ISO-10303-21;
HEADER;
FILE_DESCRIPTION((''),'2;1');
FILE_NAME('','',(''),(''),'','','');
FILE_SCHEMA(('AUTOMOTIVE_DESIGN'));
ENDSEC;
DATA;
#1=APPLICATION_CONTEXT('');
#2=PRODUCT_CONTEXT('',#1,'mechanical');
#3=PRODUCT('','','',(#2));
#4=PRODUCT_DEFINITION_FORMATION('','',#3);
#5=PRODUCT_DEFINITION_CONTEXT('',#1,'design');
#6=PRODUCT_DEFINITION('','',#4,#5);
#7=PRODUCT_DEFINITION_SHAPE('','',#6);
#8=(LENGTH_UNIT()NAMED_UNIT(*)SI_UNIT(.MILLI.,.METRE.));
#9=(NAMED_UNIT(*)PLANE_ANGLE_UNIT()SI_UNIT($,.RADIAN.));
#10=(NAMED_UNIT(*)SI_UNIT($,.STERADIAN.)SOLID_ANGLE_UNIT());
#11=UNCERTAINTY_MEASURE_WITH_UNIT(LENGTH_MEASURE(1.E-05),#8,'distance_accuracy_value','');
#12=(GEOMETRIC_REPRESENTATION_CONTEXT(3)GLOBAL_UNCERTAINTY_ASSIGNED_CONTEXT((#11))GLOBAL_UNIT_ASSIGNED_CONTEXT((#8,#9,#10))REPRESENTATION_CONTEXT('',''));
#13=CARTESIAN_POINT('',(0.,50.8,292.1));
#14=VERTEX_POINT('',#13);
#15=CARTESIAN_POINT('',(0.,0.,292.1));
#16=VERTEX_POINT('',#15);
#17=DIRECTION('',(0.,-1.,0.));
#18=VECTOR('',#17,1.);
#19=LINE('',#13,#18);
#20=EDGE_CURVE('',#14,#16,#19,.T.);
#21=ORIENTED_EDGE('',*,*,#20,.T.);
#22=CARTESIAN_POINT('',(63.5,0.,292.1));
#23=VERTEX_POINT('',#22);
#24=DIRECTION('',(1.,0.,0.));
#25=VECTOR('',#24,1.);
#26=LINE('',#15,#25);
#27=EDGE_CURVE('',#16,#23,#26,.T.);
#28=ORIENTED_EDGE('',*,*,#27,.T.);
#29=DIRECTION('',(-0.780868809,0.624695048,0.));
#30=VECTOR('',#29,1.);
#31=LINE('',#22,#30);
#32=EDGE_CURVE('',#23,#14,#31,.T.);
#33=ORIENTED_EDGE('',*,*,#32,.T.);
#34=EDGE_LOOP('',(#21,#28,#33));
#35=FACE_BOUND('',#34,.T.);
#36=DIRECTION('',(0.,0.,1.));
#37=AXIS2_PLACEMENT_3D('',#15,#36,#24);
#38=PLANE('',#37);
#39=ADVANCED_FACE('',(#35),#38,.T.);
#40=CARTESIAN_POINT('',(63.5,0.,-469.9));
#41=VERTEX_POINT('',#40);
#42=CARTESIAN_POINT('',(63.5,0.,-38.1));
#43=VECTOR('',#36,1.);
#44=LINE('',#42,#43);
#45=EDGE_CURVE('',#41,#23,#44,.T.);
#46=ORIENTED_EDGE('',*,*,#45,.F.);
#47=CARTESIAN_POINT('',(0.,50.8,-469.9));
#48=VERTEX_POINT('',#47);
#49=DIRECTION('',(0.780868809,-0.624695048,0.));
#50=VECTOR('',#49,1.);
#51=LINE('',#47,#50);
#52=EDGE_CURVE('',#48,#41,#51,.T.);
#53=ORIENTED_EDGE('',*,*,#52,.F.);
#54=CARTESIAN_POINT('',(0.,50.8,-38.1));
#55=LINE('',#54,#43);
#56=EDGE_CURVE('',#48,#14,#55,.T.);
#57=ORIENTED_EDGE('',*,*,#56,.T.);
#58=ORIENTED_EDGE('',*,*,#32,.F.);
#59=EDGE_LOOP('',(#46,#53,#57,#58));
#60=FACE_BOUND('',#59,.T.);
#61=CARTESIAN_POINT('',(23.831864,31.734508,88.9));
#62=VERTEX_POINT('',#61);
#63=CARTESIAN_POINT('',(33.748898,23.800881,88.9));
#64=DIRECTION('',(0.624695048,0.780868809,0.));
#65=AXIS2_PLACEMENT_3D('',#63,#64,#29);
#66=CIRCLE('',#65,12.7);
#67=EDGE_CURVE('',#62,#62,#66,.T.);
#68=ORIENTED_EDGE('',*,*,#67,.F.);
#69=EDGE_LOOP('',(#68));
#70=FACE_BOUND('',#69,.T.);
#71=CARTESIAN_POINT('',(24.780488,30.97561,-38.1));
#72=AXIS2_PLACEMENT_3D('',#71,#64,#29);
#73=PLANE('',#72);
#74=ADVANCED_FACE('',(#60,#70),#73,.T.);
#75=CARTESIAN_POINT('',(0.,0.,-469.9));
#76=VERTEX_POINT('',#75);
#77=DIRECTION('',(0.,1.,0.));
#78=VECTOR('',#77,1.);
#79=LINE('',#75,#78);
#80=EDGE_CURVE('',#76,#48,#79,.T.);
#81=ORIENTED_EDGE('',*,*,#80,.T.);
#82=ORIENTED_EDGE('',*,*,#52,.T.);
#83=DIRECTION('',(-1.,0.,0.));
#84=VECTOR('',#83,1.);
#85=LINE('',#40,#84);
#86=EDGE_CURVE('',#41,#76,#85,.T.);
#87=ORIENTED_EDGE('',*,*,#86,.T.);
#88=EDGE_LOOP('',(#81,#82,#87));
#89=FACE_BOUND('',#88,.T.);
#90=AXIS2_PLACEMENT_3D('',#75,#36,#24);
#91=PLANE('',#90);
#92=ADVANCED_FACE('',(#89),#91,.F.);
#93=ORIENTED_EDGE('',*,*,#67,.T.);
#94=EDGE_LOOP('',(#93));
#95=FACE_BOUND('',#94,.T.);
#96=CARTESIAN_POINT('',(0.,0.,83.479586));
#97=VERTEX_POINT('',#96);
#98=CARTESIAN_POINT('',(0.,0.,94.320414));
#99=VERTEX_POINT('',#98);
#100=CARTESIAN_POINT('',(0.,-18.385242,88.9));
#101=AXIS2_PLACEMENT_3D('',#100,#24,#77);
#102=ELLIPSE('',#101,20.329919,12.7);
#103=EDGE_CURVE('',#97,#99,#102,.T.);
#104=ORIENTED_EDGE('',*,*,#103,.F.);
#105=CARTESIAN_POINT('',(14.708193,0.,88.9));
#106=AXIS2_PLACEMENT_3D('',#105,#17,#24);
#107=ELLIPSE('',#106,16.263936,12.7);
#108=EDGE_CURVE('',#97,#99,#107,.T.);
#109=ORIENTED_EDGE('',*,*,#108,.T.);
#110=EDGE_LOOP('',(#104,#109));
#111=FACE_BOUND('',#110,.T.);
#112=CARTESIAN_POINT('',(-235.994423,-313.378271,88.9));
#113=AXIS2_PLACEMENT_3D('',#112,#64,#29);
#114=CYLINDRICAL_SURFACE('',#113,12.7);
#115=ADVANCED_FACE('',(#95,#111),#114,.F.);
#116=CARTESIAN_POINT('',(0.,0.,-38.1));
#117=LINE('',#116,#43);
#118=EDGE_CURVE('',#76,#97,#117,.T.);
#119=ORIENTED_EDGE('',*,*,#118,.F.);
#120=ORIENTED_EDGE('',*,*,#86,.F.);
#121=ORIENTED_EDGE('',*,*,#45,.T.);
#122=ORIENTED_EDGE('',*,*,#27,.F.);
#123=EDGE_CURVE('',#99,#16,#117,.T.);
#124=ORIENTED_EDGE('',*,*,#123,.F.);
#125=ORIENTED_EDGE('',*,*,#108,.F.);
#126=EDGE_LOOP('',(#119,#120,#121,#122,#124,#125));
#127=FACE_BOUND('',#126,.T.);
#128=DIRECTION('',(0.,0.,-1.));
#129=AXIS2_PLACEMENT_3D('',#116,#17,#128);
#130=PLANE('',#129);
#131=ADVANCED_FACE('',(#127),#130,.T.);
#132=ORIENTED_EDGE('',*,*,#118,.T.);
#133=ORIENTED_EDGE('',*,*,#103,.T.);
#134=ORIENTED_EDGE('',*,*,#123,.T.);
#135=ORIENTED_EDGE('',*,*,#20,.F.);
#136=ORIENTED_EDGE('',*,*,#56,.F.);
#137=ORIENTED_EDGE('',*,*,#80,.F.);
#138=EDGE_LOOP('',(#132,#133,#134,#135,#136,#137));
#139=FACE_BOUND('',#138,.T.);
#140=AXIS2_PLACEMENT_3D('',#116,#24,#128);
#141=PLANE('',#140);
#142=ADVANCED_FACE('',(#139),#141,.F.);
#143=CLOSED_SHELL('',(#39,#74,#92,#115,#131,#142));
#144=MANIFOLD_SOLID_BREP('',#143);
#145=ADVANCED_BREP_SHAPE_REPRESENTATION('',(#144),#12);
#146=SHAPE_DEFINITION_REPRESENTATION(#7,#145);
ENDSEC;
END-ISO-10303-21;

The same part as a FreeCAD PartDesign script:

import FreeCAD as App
import Part
import Sketcher
Q = App.Units.Quantity

doc = App.newDocument("Part")
body = doc.addObject("PartDesign::Body", "Body")

sketch1 = doc.addObject("Sketcher::SketchObject", "Sketch")
body.addObject(sketch1)
sketch1.AttachmentSupport = (doc.XY_Plane, [""])
sketch1.MapMode = "FlatFace"
sketch1.addGeometry(Part.LineSegment(App.Vector(0, 51, 0), App.Vector(0, 0, 0)), False)
sketch1.addGeometry(Part.LineSegment(App.Vector(0, 0, 0), App.Vector(64, 0, 0)), False)
sketch1.addGeometry(Part.LineSegment(App.Vector(64, 0, 0), App.Vector(0, 51, 0)), False)
sketch1.addConstraint(Sketcher.Constraint("Coincident", 0, 2, 1, 1))
sketch1.addConstraint(Sketcher.Constraint("Coincident", 1, 2, 2, 1))
sketch1.addConstraint(Sketcher.Constraint("Coincident", 2, 2, 0, 1))
sketch1.addConstraint(Sketcher.Constraint("Vertical", 0))
sketch1.addConstraint(Sketcher.Constraint("Horizontal", 1))
sketch1.addConstraint(Sketcher.Constraint("Coincident", 0, 2, -1, 1))
sketch1.addConstraint(Sketcher.Constraint("DistanceY", 0, 2, 0, 1, Q("2 in")))
sketch1.addConstraint(Sketcher.Constraint("DistanceX", 1, 1, 1, 2, Q("2.5 in")))
pad1 = doc.addObject("PartDesign::Pad", "Pad")
body.addObject(pad1)
pad1.Profile = sketch1
pad1.Length = Q("1.5 in")
pad1.Reversed = True

sketch2 = doc.addObject("Sketcher::SketchObject", "Sketch001")
body.addObject(sketch2)
sketch2.AttachmentSupport = (doc.XY_Plane, [""])
sketch2.MapMode = "FlatFace"
sketch2.addGeometry(Part.LineSegment(App.Vector(0, 51, 0), App.Vector(0, 0, 0)), False)
sketch2.addGeometry(Part.LineSegment(App.Vector(0, 0, 0), App.Vector(64, 0, 0)), False)
sketch2.addGeometry(Part.LineSegment(App.Vector(64, 0, 0), App.Vector(0, 51, 0)), False)
sketch2.addConstraint(Sketcher.Constraint("Coincident", 0, 2, 1, 1))
sketch2.addConstraint(Sketcher.Constraint("Coincident", 1, 2, 2, 1))
sketch2.addConstraint(Sketcher.Constraint("Coincident", 2, 2, 0, 1))
sketch2.addConstraint(Sketcher.Constraint("Vertical", 0))
sketch2.addConstraint(Sketcher.Constraint("Horizontal", 1))
sketch2.addConstraint(Sketcher.Constraint("Coincident", 0, 2, -1, 1))
sketch2.addConstraint(Sketcher.Constraint("DistanceY", 0, 2, 0, 1, Q("2 in")))
sketch2.addConstraint(Sketcher.Constraint("DistanceX", 1, 1, 1, 2, Q("2.5 in")))
pad2 = doc.addObject("PartDesign::Pad", "Pad001")
body.addObject(pad2)
pad2.Profile = sketch2
pad2.Length = Q("11.5 in")

sketch3 = doc.addObject("Sketcher::SketchObject", "Sketch002")
body.addObject(sketch3)
sketch3.AttachmentSupport = (doc.XY_Plane, [""])
sketch3.MapMode = "FlatFace"
sketch3.AttachmentOffset = App.Placement(App.Vector(0, 0, -1.5 * 25.4), App.Rotation())
sketch3.addGeometry(Part.LineSegment(App.Vector(0, 51, 0), App.Vector(64, 0, 0)), False)
sketch3.addGeometry(Part.LineSegment(App.Vector(64, 0, 0), App.Vector(0, 0, 0)), False)
sketch3.addGeometry(Part.LineSegment(App.Vector(0, 0, 0), App.Vector(0, 51, 0)), False)
sketch3.addConstraint(Sketcher.Constraint("Coincident", 0, 2, 1, 1))
sketch3.addConstraint(Sketcher.Constraint("Coincident", 1, 2, 2, 1))
sketch3.addConstraint(Sketcher.Constraint("Coincident", 2, 2, 0, 1))
sketch3.addConstraint(Sketcher.Constraint("Horizontal", 1))
sketch3.addConstraint(Sketcher.Constraint("Vertical", 2))
sketch3.addConstraint(Sketcher.Constraint("Coincident", 1, 2, -1, 1))
sketch3.addConstraint(Sketcher.Constraint("DistanceY", 2, 1, 2, 2, Q("2 in")))
sketch3.addConstraint(Sketcher.Constraint("DistanceX", 1, 2, 1, 1, Q("2.5 in")))
pad3 = doc.addObject("PartDesign::Pad", "Pad002")
body.addObject(pad3)
pad3.Profile = sketch3
pad3.Length = Q("17 in")
pad3.Reversed = True

sketch4 = doc.addObject("Sketcher::SketchObject", "Sketch003")
body.addObject(sketch4)
sketch4.Placement = App.Placement(App.Vector(24.780488, 30.97561, 0), App.Rotation(App.Vector(0.780868809, -0.624695048, 0), App.Vector(0, 0, -1), App.Vector(0.624695048, 0.780868809, 0), "ZXY"))
sketch4.addGeometry(Part.Circle(App.Vector(11, -89, 0), App.Vector(0, 0, 1), 13), False)
sketch4.addConstraint(Sketcher.Constraint("Diameter", 0, Q("1 in")))
sketch4.addConstraint(Sketcher.Constraint("DistanceY", 0, 3, -1, 1, Q("3.5 in")))
sketch4.addConstraint(Sketcher.Constraint("DistanceX", -1, 1, 0, 3, 11.485169))
pocket1 = doc.addObject("PartDesign::Pocket", "Pocket")
body.addObject(pocket1)
pocket1.Profile = sketch4
pocket1.Length = Q("17 in")

doc.recompute()
